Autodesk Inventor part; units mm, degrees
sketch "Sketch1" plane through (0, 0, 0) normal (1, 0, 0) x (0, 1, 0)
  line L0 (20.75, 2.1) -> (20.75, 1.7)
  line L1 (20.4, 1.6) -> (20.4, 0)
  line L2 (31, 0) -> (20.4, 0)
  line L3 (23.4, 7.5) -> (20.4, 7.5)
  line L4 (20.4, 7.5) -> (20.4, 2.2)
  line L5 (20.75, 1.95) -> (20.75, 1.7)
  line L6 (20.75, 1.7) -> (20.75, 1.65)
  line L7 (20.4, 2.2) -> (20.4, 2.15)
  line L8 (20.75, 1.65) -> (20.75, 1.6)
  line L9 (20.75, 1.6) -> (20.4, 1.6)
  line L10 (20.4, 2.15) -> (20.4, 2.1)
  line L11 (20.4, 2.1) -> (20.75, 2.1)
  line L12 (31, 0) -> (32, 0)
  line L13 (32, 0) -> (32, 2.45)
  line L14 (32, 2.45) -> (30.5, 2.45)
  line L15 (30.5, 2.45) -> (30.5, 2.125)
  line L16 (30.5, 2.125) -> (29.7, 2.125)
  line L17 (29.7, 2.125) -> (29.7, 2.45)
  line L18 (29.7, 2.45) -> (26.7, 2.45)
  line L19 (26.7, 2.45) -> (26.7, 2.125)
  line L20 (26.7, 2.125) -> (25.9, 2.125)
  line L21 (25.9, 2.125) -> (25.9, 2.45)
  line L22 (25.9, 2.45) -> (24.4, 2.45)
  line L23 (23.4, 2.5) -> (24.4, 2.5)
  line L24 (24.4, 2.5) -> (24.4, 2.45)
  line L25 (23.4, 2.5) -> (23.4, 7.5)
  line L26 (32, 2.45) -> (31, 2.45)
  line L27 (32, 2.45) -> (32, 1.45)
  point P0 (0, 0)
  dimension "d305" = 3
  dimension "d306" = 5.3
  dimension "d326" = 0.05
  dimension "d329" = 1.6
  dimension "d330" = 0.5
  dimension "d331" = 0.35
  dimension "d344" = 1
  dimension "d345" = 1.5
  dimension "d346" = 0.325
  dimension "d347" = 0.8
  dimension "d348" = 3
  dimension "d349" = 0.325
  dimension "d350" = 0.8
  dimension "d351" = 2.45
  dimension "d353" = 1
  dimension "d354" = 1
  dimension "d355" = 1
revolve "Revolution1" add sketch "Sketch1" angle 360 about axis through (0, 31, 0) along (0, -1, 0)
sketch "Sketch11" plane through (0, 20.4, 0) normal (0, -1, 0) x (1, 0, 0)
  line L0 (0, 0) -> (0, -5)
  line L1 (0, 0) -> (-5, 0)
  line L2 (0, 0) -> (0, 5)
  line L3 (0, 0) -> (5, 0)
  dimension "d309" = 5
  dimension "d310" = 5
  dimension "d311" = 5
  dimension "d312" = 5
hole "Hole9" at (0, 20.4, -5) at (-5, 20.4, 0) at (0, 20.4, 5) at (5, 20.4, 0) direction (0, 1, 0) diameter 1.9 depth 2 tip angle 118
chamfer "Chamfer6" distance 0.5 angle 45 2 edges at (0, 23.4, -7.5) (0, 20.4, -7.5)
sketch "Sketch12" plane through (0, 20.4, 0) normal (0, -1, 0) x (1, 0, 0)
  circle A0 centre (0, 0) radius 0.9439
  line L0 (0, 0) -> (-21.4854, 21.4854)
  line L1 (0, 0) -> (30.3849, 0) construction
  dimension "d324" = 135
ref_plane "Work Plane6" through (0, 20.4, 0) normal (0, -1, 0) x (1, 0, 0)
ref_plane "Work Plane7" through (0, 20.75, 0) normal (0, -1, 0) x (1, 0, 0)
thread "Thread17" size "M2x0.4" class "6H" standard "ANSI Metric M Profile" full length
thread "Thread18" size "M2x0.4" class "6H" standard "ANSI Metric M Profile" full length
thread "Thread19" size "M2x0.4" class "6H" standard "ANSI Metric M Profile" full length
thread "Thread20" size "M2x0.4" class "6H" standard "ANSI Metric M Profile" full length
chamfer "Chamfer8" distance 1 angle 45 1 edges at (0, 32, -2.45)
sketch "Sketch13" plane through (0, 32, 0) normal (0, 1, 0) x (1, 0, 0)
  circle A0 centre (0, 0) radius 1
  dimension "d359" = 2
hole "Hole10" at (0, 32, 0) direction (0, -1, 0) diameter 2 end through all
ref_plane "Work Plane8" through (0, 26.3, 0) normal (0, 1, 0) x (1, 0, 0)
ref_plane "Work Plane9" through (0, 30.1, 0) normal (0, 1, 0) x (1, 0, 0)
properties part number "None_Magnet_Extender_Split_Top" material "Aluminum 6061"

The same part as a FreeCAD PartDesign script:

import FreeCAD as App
import Part
import Sketcher

V = App.Vector


def edges_at(feature, points):
    """Names of the edges that pass closest to the given points."""
    edges = feature.Shape.Edges
    near = lambda p: min(range(len(edges)), key=lambda i: edges[i].distToShape(Part.Vertex(*p))[0])
    return sorted({f"Edge{near(p) + 1}" for p in points})


def add_polygon(sketch, points):
    """Adds a closed chain of lines whose ends are joined by coincident constraints."""
    first, n = sketch.GeometryCount, len(points)
    for a, b in zip(points, points[1:] + points[:1]):
        sketch.addGeometry(Part.LineSegment(App.Vector(*a, 0), App.Vector(*b, 0)), False)
    for i in range(n):
        sketch.addConstraint(Sketcher.Constraint("Coincident", first + i, 2, first + (i + 1) % n, 1))

doc = App.newDocument("Part")
body = doc.addObject("PartDesign::Body", "Body")

sketch1 = doc.addObject("Sketcher::SketchObject", "Sketch")
body.addObject(sketch1)
sketch1.AttachmentSupport = (doc.YZ_Plane, [""])
sketch1.MapMode = "FlatFace"
add_polygon(sketch1, [(20.4, 2.1), (20.75, 2.1), (20.75, 1.6), (20.4, 1.6), (20.4, 0), (32, 0), (32, 2.45), (30.5, 2.45), (30.5, 2.125), (29.7, 2.125), (29.7, 2.45), (26.7, 2.45), (26.7, 2.125), (25.9, 2.125), (25.9, 2.45), (24.4, 2.45), (24.4, 2.5), (23.4, 2.5), (23.4, 7.5), (20.4, 7.5)])
sketch1.addConstraint(Sketcher.Constraint("Horizontal", 0))
sketch1.addConstraint(Sketcher.Constraint("Vertical", 1))
sketch1.addConstraint(Sketcher.Constraint("Horizontal", 2))
sketch1.addConstraint(Sketcher.Constraint("Vertical", 3))
sketch1.addConstraint(Sketcher.Constraint("Horizontal", 4))
sketch1.addConstraint(Sketcher.Constraint("Vertical", 5))
sketch1.addConstraint(Sketcher.Constraint("Horizontal", 6))
sketch1.addConstraint(Sketcher.Constraint("Vertical", 7))
sketch1.addConstraint(Sketcher.Constraint("Horizontal", 8))
sketch1.addConstraint(Sketcher.Constraint("Vertical", 9))
sketch1.addConstraint(Sketcher.Constraint("Horizontal", 10))
sketch1.addConstraint(Sketcher.Constraint("Vertical", 11))
sketch1.addConstraint(Sketcher.Constraint("Horizontal", 12))
sketch1.addConstraint(Sketcher.Constraint("Vertical", 13))
sketch1.addConstraint(Sketcher.Constraint("Horizontal", 14))
sketch1.addConstraint(Sketcher.Constraint("Vertical", 15))
sketch1.addConstraint(Sketcher.Constraint("Horizontal", 16))
sketch1.addConstraint(Sketcher.Constraint("Vertical", 17))
sketch1.addConstraint(Sketcher.Constraint("Horizontal", 18))
sketch1.addConstraint(Sketcher.Constraint("Vertical", 19))
sketch1.addConstraint(Sketcher.Constraint("PointOnObject", 3, 2, -1))
sketch1.addConstraint(Sketcher.Constraint("Horizontal", 6, 2, 9, 2))
sketch1.addConstraint(Sketcher.Constraint("Horizontal", 8, 2, 11, 2))
sketch1.addConstraint(Sketcher.Constraint("Horizontal", 10, 2, 13, 2))
sketch1.addConstraint(Sketcher.Constraint("Vertical", 3, 2, 18, 2))
sketch1.addConstraint(Sketcher.Constraint("Equal", 8, 12))
sketch1.addConstraint(Sketcher.Constraint("Equal", 6, 14))
sketch1.addConstraint(Sketcher.Constraint("Equal", 10, 18))
sketch1.addConstraint(Sketcher.Constraint("DistanceX", 10, 2, 10, 1, 3.0))
sketch1.addConstraint(Sketcher.Constraint("DistanceX", 16, 2, 16, 1, 1.0))
sketch1.addConstraint(Sketcher.Constraint("DistanceX", 6, 2, 6, 1, 1.5))
sketch1.addConstraint(Sketcher.Constraint("DistanceX", 8, 2, 8, 1, 0.8))
sketch1.addConstraint(Sketcher.Constraint("DistanceY", 1, 2, 1, 1, 0.5))
sketch1.addConstraint(Sketcher.Constraint("DistanceY", 3, 2, 3, 1, 1.6))
sketch1.addConstraint(Sketcher.Constraint("DistanceX", 0, 1, 0, 2, 0.35))
sketch1.addConstraint(Sketcher.Constraint("DistanceY", 5, 1, 5, 2, 2.45))
sketch1.addConstraint(Sketcher.Constraint("DistanceY", 15, 1, 15, 2, 0.05))
sketch1.addConstraint(Sketcher.Constraint("DistanceY", 7, 2, 7, 1, 0.325))
sketch1.addConstraint(Sketcher.Constraint("DistanceY", 17, 1, 17, 2, 5.0))
sketch1.addConstraint(Sketcher.Constraint("DistanceX", -1, 1, 4, 2, 32.0))
revolution = doc.addObject("PartDesign::Revolution", "Revolution")
body.addObject(revolution)
revolution.Profile = sketch1
revolution.ReferenceAxis = (sketch1, ["H_Axis"])
revolution.Angle = 360

sketch2 = doc.addObject("Sketcher::SketchObject", "Sketch001")
body.addObject(sketch2)
sketch2.AttachmentSupport = (doc.XZ_Plane, [""])
sketch2.MapMode = "FlatFace"
sketch2.AttachmentOffset = App.Placement(V(0, 0, -20.4), App.Rotation())
sketch2.addGeometry(Part.Circle(V(0, -5, 0), V(0, 0, 1), 0.9), False)
sketch2.addGeometry(Part.Circle(V(-5, 0, 0), V(0, 0, 1), 0.9), False)
sketch2.addGeometry(Part.Circle(V(0, 5, 0), V(0, 0, 1), 0.9), False)
sketch2.addGeometry(Part.Circle(V(5, 0, 0), V(0, 0, 1), 0.9), False)
sketch2.addConstraint(Sketcher.Constraint("Equal", 0, 1))
sketch2.addConstraint(Sketcher.Constraint("Equal", 1, 2))
sketch2.addConstraint(Sketcher.Constraint("Equal", 2, 3))
sketch2.addConstraint(Sketcher.Constraint("Symmetric", 0, 3, 2, 3, -1, 1))
sketch2.addConstraint(Sketcher.Constraint("Symmetric", 1, 3, 3, 3, -1, 1))
sketch2.addConstraint(Sketcher.Constraint("PointOnObject", 0, 3, -2))
sketch2.addConstraint(Sketcher.Constraint("PointOnObject", 1, 3, -1))
sketch2.addConstraint(Sketcher.Constraint("Diameter", 0, 1.9))
sketch2.addConstraint(Sketcher.Constraint("DistanceY", 0, 3, -1, 1, 5.0))
sketch2.addConstraint(Sketcher.Constraint("DistanceX", 1, 3, -1, 1, 5.0))
doc.recompute()
hole = doc.addObject("PartDesign::Hole", "Hole")
body.addObject(hole)
hole.Profile = sketch2
hole.ThreadType = "None"
hole.Diameter = 1.9
hole.DepthType = "Dimension"
hole.Depth = 2
hole.DrillPoint = "Angled"
hole.DrillPointAngle = 118
doc.recompute()

chamfer = doc.addObject("PartDesign::Chamfer", "Chamfer")
body.addObject(chamfer)
chamfer.Base = (hole, edges_at(hole, [(0, 23.4, -7.5), (0, 20.4, -7.5)]))
chamfer.Size = 0.5
doc.recompute()

chamfer2 = doc.addObject("PartDesign::Chamfer", "Chamfer001")
body.addObject(chamfer2)
chamfer2.Base = (chamfer, edges_at(chamfer, [(0, 32, -2.45)]))
chamfer2.Size = 1

sketch3 = doc.addObject("Sketcher::SketchObject", "Sketch002")
body.addObject(sketch3)
sketch3.AttachmentSupport = (doc.XZ_Plane, [""])
sketch3.MapMode = "FlatFace"
sketch3.AttachmentOffset = App.Placement(V(0, 0, -32), App.Rotation())
sketch3.addGeometry(Part.Circle(V(0, 0, 0), V(0, 0, 1), 1), False)
sketch3.addConstraint(Sketcher.Constraint("Coincident", 0, 3, -1, 1))
sketch3.addConstraint(Sketcher.Constraint("Diameter", 0, 2.0))
doc.recompute()
hole2 = doc.addObject("PartDesign::Hole", "Hole001")
body.addObject(hole2)
hole2.Profile = sketch3
hole2.ThreadType = "None"
hole2.Diameter = 2
hole2.DepthType = "ThroughAll"
hole2.Reversed = True

doc.recompute()
